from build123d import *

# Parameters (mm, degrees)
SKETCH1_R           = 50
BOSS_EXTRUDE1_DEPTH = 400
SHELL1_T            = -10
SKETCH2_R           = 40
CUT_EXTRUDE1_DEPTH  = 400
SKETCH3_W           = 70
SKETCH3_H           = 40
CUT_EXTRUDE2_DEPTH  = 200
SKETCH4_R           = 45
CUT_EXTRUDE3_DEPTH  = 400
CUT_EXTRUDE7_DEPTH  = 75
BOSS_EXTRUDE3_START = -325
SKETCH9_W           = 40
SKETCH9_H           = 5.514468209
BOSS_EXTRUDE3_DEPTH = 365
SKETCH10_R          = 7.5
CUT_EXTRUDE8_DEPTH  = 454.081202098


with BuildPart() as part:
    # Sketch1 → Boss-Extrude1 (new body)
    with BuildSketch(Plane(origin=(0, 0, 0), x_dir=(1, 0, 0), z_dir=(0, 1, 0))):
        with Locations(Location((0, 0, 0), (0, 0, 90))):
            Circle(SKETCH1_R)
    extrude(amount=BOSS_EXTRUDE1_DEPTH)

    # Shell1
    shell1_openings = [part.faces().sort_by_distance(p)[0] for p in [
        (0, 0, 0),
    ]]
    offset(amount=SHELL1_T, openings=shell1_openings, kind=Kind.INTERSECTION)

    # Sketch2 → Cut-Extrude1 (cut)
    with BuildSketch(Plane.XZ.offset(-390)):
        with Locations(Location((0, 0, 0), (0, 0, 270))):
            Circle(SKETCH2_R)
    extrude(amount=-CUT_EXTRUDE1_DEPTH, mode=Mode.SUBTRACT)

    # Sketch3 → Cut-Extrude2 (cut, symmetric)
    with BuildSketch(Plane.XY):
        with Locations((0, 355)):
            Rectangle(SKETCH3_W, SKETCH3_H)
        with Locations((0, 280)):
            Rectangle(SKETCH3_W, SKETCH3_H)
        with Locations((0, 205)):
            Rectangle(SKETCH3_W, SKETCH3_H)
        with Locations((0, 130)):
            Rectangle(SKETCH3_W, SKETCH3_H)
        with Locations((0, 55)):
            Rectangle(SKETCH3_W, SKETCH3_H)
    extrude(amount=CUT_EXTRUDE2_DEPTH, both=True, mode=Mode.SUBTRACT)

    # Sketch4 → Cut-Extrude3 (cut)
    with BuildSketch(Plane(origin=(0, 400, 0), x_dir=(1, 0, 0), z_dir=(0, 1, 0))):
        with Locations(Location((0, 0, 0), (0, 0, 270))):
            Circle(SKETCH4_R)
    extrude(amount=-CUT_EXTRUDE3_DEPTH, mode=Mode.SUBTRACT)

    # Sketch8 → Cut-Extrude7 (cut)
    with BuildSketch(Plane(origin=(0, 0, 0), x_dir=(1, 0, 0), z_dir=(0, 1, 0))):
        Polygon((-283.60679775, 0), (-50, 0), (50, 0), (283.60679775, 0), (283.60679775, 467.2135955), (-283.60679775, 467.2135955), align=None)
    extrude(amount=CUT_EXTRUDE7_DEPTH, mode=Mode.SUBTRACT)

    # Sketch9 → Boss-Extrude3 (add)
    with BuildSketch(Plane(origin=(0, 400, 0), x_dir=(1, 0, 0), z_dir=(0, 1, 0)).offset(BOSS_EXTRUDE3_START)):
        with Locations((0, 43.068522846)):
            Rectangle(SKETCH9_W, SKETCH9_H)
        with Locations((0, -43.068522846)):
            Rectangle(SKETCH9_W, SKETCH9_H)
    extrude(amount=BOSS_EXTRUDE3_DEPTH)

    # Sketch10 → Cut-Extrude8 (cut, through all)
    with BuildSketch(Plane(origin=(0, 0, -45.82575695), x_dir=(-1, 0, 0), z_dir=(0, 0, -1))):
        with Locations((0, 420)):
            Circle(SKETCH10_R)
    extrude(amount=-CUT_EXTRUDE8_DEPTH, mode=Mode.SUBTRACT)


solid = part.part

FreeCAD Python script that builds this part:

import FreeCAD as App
import Part
import Sketcher


def faces_at(feature, points):
    """Names of the faces that lie closest to the given points."""
    faces = feature.Shape.Faces
    near = lambda p: min(range(len(faces)), key=lambda i: faces[i].distToShape(Part.Vertex(*p))[0])
    return sorted({f"Face{near(p) + 1}" for p in points})


def add_polygon(sketch, points):
    """Adds a closed chain of lines whose ends are joined by coincident constraints."""
    first, n = sketch.GeometryCount, len(points)
    for a, b in zip(points, points[1:] + points[:1]):
        sketch.addGeometry(Part.LineSegment(App.Vector(*a, 0), App.Vector(*b, 0)), False)
    for i in range(n):
        sketch.addConstraint(Sketcher.Constraint("Coincident", first + i, 2, first + (i + 1) % n, 1))

doc = App.newDocument("Part")
body = doc.addObject("PartDesign::Body", "Body")

# Sketch on XZ plane
sketch1 = body.newObject("Sketcher::SketchObject", "Sketch")
sketch1.AttachmentSupport = (doc.getObject("XZ_Plane"), [""])
sketch1.MapMode = "FlatFace"
sketch1.addGeometry(Part.Circle(App.Vector(0, 0, 0), App.Vector(0, 0, 1), 50), False)
sketch1.addConstraint(Sketcher.Constraint("Coincident", 0, 3, -1, 1))
sketch1.addConstraint(Sketcher.Constraint("Diameter", 0, 100.0))
pad1 = body.newObject("PartDesign::Pad", "Pad")
pad1.Profile = sketch1
pad1.Length = 400
pad1.Reversed = True
doc.recompute()

thickness = body.newObject("PartDesign::Thickness", "Thickness")
thickness.Base = (pad1, faces_at(pad1, [(0, 0, 0)]))
thickness.Value = 10
thickness.Reversed = True
thickness.Join = "Intersection"

# Sketch on XZ plane
sketch2 = body.newObject("Sketcher::SketchObject", "Sketch001")
sketch2.AttachmentSupport = (doc.getObject("XZ_Plane"), [""])
sketch2.MapMode = "FlatFace"
sketch2.AttachmentOffset = App.Placement(App.Vector(0, 0, -390), App.Rotation())
sketch2.addGeometry(Part.Circle(App.Vector(0, 0, 0), App.Vector(0, 0, 1), 40), False)
sketch2.addConstraint(Sketcher.Constraint("Coincident", 0, 3, -1, 1))
sketch2.addConstraint(Sketcher.Constraint("Diameter", 0, 80.0))
pocket1 = body.newObject("PartDesign::Pocket", "Pocket")
pocket1.Profile = sketch2
pocket1.Length = 400

# Sketch on XY plane
sketch3 = body.newObject("Sketcher::SketchObject", "Sketch002")
sketch3.AttachmentSupport = (doc.getObject("XY_Plane"), [""])
sketch3.MapMode = "FlatFace"
add_polygon(sketch3, [(-35, 375), (-35, 335), (35, 335), (35, 375)])  # lines 0-3
add_polygon(sketch3, [(-35, 300), (-35, 260), (35, 260), (35, 300)])  # lines 4-7
add_polygon(sketch3, [(-35, 225), (-35, 185), (35, 185), (35, 225)])  # lines 8-11
add_polygon(sketch3, [(-35, 150), (-35, 110), (35, 110), (35, 150)])  # lines 12-15
add_polygon(sketch3, [(-35, 75), (-35, 35), (35, 35), (35, 75)])  # lines 16-19
sketch3.addConstraint(Sketcher.Constraint("Vertical", 0))
sketch3.addConstraint(Sketcher.Constraint("Horizontal", 1))
sketch3.addConstraint(Sketcher.Constraint("Vertical", 2))
sketch3.addConstraint(Sketcher.Constraint("Horizontal", 3))
sketch3.addConstraint(Sketcher.Constraint("Vertical", 4))
sketch3.addConstraint(Sketcher.Constraint("Horizontal", 5))
sketch3.addConstraint(Sketcher.Constraint("Vertical", 6))
sketch3.addConstraint(Sketcher.Constraint("Horizontal", 7))
sketch3.addConstraint(Sketcher.Constraint("Vertical", 8))
sketch3.addConstraint(Sketcher.Constraint("Horizontal", 9))
sketch3.addConstraint(Sketcher.Constraint("Vertical", 10))
sketch3.addConstraint(Sketcher.Constraint("Horizontal", 11))
sketch3.addConstraint(Sketcher.Constraint("Vertical", 12))
sketch3.addConstraint(Sketcher.Constraint("Horizontal", 13))
sketch3.addConstraint(Sketcher.Constraint("Vertical", 14))
sketch3.addConstraint(Sketcher.Constraint("Horizontal", 15))
sketch3.addConstraint(Sketcher.Constraint("Vertical", 16))
sketch3.addConstraint(Sketcher.Constraint("Horizontal", 17))
sketch3.addConstraint(Sketcher.Constraint("Vertical", 18))
sketch3.addConstraint(Sketcher.Constraint("Horizontal", 19))
sketch3.addConstraint(Sketcher.Constraint("Vertical", 3, 2, 4, 2))
sketch3.addConstraint(Sketcher.Constraint("Vertical", 2, 2, 5, 2))
sketch3.addConstraint(Sketcher.Constraint("Vertical", 7, 2, 8, 2))
sketch3.addConstraint(Sketcher.Constraint("Vertical", 6, 2, 9, 2))
sketch3.addConstraint(Sketcher.Constraint("Vertical", 11, 2, 12, 2))
sketch3.addConstraint(Sketcher.Constraint("Vertical", 10, 2, 13, 2))
sketch3.addConstraint(Sketcher.Constraint("Vertical", 15, 2, 16, 2))
sketch3.addConstraint(Sketcher.Constraint("Vertical", 14, 2, 17, 2))
sketch3.addConstraint(Sketcher.Constraint("Equal", 2, 4))
sketch3.addConstraint(Sketcher.Constraint("Equal", 6, 8))
sketch3.addConstraint(Sketcher.Constraint("Equal", 10, 12))
sketch3.addConstraint(Sketcher.Constraint("Equal", 14, 16))
sketch3.addConstraint(Sketcher.Constraint("DistanceX", 1, 1, 1, 2, 70.0))
sketch3.addConstraint(Sketcher.Constraint("DistanceY", 0, 2, 0, 1, 40.0))
sketch3.addConstraint(Sketcher.Constraint("DistanceX", 0, 2, -1, 1, 35.0))
sketch3.addConstraint(Sketcher.Constraint("DistanceY", -1, 1, 0, 2, 335.0))
sketch3.addConstraint(Sketcher.Constraint("DistanceY", -1, 1, 4, 2, 260.0))
sketch3.addConstraint(Sketcher.Constraint("DistanceY", -1, 1, 8, 2, 185.0))
sketch3.addConstraint(Sketcher.Constraint("DistanceY", -1, 1, 12, 2, 110.0))
sketch3.addConstraint(Sketcher.Constraint("DistanceY", -1, 1, 16, 2, 35.0))
pocket2 = body.newObject("PartDesign::Pocket", "Pocket001")
pocket2.Profile = sketch3
pocket2.Length = 400
pocket2.Midplane = True

# Sketch on XZ plane
sketch4 = body.newObject("Sketcher::SketchObject", "Sketch003")
sketch4.AttachmentSupport = (doc.getObject("XZ_Plane"), [""])
sketch4.MapMode = "FlatFace"
sketch4.AttachmentOffset = App.Placement(App.Vector(0, 0, -400), App.Rotation())
sketch4.addGeometry(Part.Circle(App.Vector(0, 0, 0), App.Vector(0, 0, 1), 45), False)
sketch4.addConstraint(Sketcher.Constraint("Coincident", 0, 3, -1, 1))
sketch4.addConstraint(Sketcher.Constraint("Diameter", 0, 90.0))
pocket3 = body.newObject("PartDesign::Pocket", "Pocket002")
pocket3.Profile = sketch4
pocket3.Length = 400
pocket3.Reversed = True

# Sketch on XZ plane
sketch5 = body.newObject("Sketcher::SketchObject", "Sketch004")
sketch5.AttachmentSupport = (doc.getObject("XZ_Plane"), [""])
sketch5.MapMode = "FlatFace"
add_polygon(sketch5, [(-284, 0), (284, 0), (284, -467), (-284, -467)])  # lines 0-3
sketch5.addConstraint(Sketcher.Constraint("Horizontal", 0))
sketch5.addConstraint(Sketcher.Constraint("Vertical", 1))
sketch5.addConstraint(Sketcher.Constraint("Horizontal", 2))
sketch5.addConstraint(Sketcher.Constraint("Vertical", 3))
sketch5.addConstraint(Sketcher.Constraint("Symmetric", 0, 2, 3, 2, -1, 1))
sketch5.addConstraint(Sketcher.Constraint("DistanceX", 0, 1, 0, 2, 567.213595))
sketch5.addConstraint(Sketcher.Constraint("DistanceY", 1, 2, 1, 1, 467.213595))
pocket4 = body.newObject("PartDesign::Pocket", "Pocket003")
pocket4.Profile = sketch5
pocket4.Length = 75

# Sketch on XZ plane
sketch6 = body.newObject("Sketcher::SketchObject", "Sketch005")
sketch6.AttachmentSupport = (doc.getObject("XZ_Plane"), [""])
sketch6.MapMode = "FlatFace"
sketch6.AttachmentOffset = App.Placement(App.Vector(0, 0, -75), App.Rotation())
add_polygon(sketch6, [(-20, -46), (-20, -40), (20, -40), (20, -46)])  # lines 0-3
add_polygon(sketch6, [(-20, 40), (-20, 46), (20, 46), (20, 40)])  # lines 4-7
sketch6.addConstraint(Sketcher.Constraint("Vertical", 0))
sketch6.addConstraint(Sketcher.Constraint("Horizontal", 1))
sketch6.addConstraint(Sketcher.Constraint("Vertical", 2))
sketch6.addConstraint(Sketcher.Constraint("Horizontal", 3))
sketch6.addConstraint(Sketcher.Constraint("Vertical", 4))
sketch6.addConstraint(Sketcher.Constraint("Horizontal", 5))
sketch6.addConstraint(Sketcher.Constraint("Vertical", 6))
sketch6.addConstraint(Sketcher.Constraint("Horizontal", 7))
sketch6.addConstraint(Sketcher.Constraint("Symmetric", 2, 2, 4, 2, -1, 1))
sketch6.addConstraint(Sketcher.Constraint("Symmetric", 0, 2, 6, 2, -1, 1))
sketch6.addConstraint(Sketcher.Constraint("Vertical", 3, 2, 4, 2))
sketch6.addConstraint(Sketcher.Constraint("DistanceX", 1, 1, 1, 2, 40.0))
sketch6.addConstraint(Sketcher.Constraint("DistanceY", 0, 1, 0, 2, 5.514468))
sketch6.addConstraint(Sketcher.Constraint("DistanceY", 0, 2, -1, 1, 40.311289))
pad2 = body.newObject("PartDesign::Pad", "Pad001")
pad2.Profile = sketch6
pad2.Length = 365
pad2.Reversed = True

# Sketch on XY plane
sketch7 = body.newObject("Sketcher::SketchObject", "Sketch006")
sketch7.AttachmentSupport = (doc.getObject("XY_Plane"), [""])
sketch7.MapMode = "FlatFace"
sketch7.AttachmentOffset = App.Placement(App.Vector(0, 0, -45.825757), App.Rotation())
sketch7.addGeometry(Part.Circle(App.Vector(0, 420, 0), App.Vector(0, 0, 1), 8), False)
sketch7.addConstraint(Sketcher.Constraint("PointOnObject", 0, 3, -2))
sketch7.addConstraint(Sketcher.Constraint("Diameter", 0, 15.0))
sketch7.addConstraint(Sketcher.Constraint("DistanceY", -1, 1, 0, 3, 420.0))
pocket5 = body.newObject("PartDesign::Pocket", "Pocket004")
pocket5.Profile = sketch7
pocket5.Type = "ThroughAll"
pocket5.Reversed = True

doc.recompute()
